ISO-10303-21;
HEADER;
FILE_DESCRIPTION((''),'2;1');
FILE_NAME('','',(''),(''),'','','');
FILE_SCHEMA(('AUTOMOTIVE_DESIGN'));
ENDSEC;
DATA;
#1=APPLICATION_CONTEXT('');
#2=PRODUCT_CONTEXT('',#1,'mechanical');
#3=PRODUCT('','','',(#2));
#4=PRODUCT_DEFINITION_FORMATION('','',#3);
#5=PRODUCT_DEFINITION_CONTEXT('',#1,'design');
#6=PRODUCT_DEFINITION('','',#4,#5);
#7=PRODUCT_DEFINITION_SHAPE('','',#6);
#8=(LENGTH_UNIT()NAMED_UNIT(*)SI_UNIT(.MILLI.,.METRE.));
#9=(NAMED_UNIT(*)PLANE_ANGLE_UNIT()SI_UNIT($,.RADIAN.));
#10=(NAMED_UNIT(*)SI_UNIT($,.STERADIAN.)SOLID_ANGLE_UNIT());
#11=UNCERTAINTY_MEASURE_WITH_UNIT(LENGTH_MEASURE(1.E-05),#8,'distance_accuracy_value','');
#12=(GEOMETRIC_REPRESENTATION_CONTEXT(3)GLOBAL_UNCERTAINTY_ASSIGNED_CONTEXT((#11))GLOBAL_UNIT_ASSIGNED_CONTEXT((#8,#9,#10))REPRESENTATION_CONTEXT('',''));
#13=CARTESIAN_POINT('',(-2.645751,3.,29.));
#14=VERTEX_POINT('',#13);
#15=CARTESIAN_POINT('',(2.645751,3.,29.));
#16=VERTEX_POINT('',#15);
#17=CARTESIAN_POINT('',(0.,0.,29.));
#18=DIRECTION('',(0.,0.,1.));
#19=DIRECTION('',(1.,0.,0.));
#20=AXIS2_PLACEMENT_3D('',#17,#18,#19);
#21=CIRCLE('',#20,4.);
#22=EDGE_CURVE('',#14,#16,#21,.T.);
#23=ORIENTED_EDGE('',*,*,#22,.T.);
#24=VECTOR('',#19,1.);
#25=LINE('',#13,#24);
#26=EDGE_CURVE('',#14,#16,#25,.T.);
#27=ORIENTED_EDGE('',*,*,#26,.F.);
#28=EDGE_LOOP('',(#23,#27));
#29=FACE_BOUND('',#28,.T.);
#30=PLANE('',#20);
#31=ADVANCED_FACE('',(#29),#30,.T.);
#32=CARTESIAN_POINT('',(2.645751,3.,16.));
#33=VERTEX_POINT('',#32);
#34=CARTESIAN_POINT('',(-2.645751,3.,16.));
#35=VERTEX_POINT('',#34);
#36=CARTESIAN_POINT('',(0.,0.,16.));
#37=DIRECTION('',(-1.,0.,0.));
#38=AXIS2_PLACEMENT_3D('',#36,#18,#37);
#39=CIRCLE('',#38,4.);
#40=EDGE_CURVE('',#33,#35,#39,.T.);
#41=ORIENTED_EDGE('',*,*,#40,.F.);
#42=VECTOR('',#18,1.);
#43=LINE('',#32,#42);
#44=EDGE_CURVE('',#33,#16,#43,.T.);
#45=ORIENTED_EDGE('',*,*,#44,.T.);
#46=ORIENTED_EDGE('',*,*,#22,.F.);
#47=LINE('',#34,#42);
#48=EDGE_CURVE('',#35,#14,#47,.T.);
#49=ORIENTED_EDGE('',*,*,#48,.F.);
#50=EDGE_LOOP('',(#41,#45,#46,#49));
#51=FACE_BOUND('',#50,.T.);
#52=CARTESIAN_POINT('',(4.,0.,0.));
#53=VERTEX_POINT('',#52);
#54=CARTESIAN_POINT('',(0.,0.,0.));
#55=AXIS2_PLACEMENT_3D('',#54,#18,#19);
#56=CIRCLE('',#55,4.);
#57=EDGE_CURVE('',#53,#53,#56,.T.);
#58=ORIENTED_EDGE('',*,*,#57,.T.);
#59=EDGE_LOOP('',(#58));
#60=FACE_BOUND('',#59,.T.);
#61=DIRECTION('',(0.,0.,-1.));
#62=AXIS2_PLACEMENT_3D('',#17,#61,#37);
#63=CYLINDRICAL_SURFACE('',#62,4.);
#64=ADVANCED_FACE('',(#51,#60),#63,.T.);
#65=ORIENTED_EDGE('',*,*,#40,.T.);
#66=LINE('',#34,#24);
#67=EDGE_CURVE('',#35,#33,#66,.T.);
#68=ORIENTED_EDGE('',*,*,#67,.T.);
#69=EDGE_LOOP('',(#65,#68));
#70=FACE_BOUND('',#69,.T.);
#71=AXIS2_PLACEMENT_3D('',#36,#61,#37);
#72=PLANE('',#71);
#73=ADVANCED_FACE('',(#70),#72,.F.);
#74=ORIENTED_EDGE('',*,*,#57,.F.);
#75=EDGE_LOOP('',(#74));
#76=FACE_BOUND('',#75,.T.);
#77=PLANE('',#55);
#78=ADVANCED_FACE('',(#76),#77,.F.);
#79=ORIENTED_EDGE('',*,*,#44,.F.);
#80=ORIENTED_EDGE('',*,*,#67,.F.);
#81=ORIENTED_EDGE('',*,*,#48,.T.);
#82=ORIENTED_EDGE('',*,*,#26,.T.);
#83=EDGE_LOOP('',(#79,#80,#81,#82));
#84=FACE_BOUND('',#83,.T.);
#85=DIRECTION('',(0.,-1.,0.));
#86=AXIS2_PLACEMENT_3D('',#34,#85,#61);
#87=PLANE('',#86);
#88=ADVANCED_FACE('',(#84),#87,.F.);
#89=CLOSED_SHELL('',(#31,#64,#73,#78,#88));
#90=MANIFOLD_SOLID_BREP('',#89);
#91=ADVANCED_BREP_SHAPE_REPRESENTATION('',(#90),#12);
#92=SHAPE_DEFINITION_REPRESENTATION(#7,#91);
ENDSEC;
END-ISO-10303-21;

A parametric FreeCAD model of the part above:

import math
import FreeCAD as App
import Part
import Sketcher
from FreeCAD import Vector
Q = App.Units.Quantity

doc = App.newDocument("Part")
body = doc.addObject("PartDesign::Body", "Body")

sketch1 = doc.addObject("Sketcher::SketchObject", "Sketch")
body.addObject(sketch1)
sketch1.AttachmentSupport = (doc.XY_Plane, [""])
sketch1.MapMode = "FlatFace"
sketch1.addGeometry(Part.Circle(Vector(0, 0, 0), Vector(0, 0, 1), 4), False)
sketch1.addConstraint(Sketcher.Constraint("Coincident", 0, 3, -1, 1))
sketch1.addConstraint(Sketcher.Constraint("Diameter", 0, Q("8 mm")))
pad1 = doc.addObject("PartDesign::Pad", "Pad")
body.addObject(pad1)
pad1.Profile = sketch1
pad1.Length = 29

sketch2 = doc.addObject("Sketcher::SketchObject", "Sketch001")
body.addObject(sketch2)
sketch2.AttachmentSupport = (doc.XY_Plane, [""])
sketch2.MapMode = "FlatFace"
sketch2.AttachmentOffset = App.Placement(Vector(0, 0, 16), App.Rotation())
sketch2.addGeometry(Part.LineSegment(Vector(-2.6, 3, 0), Vector(2.6, 3, 0)), False)
sketch2.addGeometry(Part.ArcOfCircle(Part.Circle(Vector(0, 0, 0), Vector(0, 0, 1), 4), math.radians(49), math.radians(131)), False)
sketch2.addConstraint(Sketcher.Constraint("Coincident", 0, 1, 1, 2))
sketch2.addConstraint(Sketcher.Constraint("Coincident", 1, 1, 0, 2))
sketch2.addConstraint(Sketcher.Constraint("Horizontal", 0))
sketch2.addConstraint(Sketcher.Constraint("Coincident", 1, 3, -1, 1))
sketch2.addConstraint(Sketcher.Constraint("Radius", 1, Q("4 mm")))
sketch2.addConstraint(Sketcher.Constraint("DistanceY", -1, 1, 0, 1, Q("3 mm")))
pocket1 = doc.addObject("PartDesign::Pocket", "Pocket")
body.addObject(pocket1)
pocket1.Profile = sketch2
pocket1.Length = 13
pocket1.Reversed = True

doc.recompute()
